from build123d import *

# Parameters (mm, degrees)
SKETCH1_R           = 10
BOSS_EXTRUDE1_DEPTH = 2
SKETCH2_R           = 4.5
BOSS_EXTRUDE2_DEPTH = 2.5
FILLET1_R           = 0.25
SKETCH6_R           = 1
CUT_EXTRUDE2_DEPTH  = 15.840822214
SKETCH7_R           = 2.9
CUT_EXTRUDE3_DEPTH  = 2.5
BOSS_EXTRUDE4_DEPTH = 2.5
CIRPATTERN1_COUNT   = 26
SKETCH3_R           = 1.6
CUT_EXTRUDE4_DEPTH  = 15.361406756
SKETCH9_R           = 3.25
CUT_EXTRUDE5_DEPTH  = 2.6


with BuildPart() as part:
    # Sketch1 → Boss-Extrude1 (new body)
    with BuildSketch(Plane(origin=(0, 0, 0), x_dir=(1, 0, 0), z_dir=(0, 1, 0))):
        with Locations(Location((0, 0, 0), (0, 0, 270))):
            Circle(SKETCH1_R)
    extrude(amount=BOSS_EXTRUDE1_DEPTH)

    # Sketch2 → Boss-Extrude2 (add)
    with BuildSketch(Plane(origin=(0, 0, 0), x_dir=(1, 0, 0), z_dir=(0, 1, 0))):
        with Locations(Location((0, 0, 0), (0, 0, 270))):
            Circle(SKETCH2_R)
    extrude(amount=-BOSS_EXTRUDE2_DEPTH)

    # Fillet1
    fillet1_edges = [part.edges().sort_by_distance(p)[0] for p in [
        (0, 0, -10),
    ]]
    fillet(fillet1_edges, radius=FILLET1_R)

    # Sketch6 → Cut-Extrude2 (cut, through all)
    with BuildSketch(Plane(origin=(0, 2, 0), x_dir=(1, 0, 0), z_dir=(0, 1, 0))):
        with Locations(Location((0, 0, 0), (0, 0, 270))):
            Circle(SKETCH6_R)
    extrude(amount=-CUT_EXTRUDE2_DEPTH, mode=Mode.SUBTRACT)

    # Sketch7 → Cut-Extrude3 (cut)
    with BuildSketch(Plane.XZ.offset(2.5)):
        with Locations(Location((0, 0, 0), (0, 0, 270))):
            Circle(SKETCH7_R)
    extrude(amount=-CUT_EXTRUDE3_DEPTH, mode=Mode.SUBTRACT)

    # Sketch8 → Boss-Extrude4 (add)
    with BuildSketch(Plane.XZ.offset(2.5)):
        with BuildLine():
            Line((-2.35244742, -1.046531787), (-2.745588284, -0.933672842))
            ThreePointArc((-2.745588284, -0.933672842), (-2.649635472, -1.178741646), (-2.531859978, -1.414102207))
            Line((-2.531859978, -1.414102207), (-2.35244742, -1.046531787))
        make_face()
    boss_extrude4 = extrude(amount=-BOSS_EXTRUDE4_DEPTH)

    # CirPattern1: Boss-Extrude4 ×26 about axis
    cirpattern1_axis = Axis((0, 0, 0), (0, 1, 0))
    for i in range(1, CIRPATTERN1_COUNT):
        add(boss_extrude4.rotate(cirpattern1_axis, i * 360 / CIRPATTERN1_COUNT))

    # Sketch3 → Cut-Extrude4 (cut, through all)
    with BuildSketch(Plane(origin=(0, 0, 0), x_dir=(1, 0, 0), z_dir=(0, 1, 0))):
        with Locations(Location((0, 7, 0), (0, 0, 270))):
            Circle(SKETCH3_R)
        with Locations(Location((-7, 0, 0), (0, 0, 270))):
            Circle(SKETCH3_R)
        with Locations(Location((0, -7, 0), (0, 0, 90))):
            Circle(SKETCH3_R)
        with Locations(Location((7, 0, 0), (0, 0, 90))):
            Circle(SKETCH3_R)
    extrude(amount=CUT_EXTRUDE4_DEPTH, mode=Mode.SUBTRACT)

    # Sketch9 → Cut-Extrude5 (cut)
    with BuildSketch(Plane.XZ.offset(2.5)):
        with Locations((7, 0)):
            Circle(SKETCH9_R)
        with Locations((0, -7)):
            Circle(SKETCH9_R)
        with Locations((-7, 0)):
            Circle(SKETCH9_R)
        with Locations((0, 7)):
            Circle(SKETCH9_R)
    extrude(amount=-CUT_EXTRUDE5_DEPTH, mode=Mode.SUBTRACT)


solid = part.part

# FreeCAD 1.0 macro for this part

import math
import FreeCAD as App
import Part
import Sketcher


def edges_at(feature, points):
    """Names of the edges that pass closest to the given points."""
    edges = feature.Shape.Edges
    near = lambda p: min(range(len(edges)), key=lambda i: edges[i].distToShape(Part.Vertex(*p))[0])
    return sorted({f"Edge{near(p) + 1}" for p in points})

doc = App.newDocument("Part")
body = doc.addObject("PartDesign::Body", "Body")

sketch1 = body.newObject("Sketcher::SketchObject", "Sketch")
sketch1.AttachmentSupport = (doc.getObject("XZ_Plane"), [""])
sketch1.MapMode = "FlatFace"
sketch1.addGeometry(Part.Circle(App.Vector(0, 0, 0), App.Vector(0, 0, 1), 10), False)
sketch1.addConstraint([
    Sketcher.Constraint("Coincident", 0, 3, -1, 1),
    Sketcher.Constraint("Diameter", 0, 20.0),
])
pad1 = body.newObject("PartDesign::Pad", "Pad")
pad1.Profile = sketch1
pad1.Length = 2
pad1.Reversed = True

sketch2 = body.newObject("Sketcher::SketchObject", "Sketch001")
sketch2.AttachmentSupport = (doc.getObject("XZ_Plane"), [""])
sketch2.MapMode = "FlatFace"
sketch2.addGeometry(Part.Circle(App.Vector(0, 0, 0), App.Vector(0, 0, 1), 4.5), False)
sketch2.addConstraint([
    Sketcher.Constraint("Coincident", 0, 3, -1, 1),
    Sketcher.Constraint("Diameter", 0, 9.0),
])
pad2 = body.newObject("PartDesign::Pad", "Pad001")
pad2.Profile = sketch2
pad2.Length = 2.5
doc.recompute()

fillet = body.newObject("PartDesign::Fillet", "Fillet")
fillet.Base = (pad2, edges_at(pad2, [(0, 0, -10)]))
fillet.Radius = 0.25

sketch3 = body.newObject("Sketcher::SketchObject", "Sketch002")
sketch3.AttachmentSupport = (doc.getObject("XZ_Plane"), [""])
sketch3.MapMode = "FlatFace"
sketch3.AttachmentOffset = App.Placement(App.Vector(0, 0, -2), App.Rotation())
sketch3.addGeometry(Part.Circle(App.Vector(0, 0, 0), App.Vector(0, 0, 1), 1), False)
sketch3.addConstraint([
    Sketcher.Constraint("Coincident", 0, 3, -1, 1),
    Sketcher.Constraint("Diameter", 0, 2.0),
])
pocket1 = body.newObject("PartDesign::Pocket", "Pocket")
pocket1.Profile = sketch3
pocket1.Type = "ThroughAll"
pocket1.Reversed = True

sketch4 = body.newObject("Sketcher::SketchObject", "Sketch003")
sketch4.AttachmentSupport = (doc.getObject("XZ_Plane"), [""])
sketch4.MapMode = "FlatFace"
sketch4.AttachmentOffset = App.Placement(App.Vector(0, 0, 2.5), App.Rotation())
sketch4.addGeometry(Part.Circle(App.Vector(0, 0, 0), App.Vector(0, 0, 1), 2.9), False)
sketch4.addConstraint([
    Sketcher.Constraint("Coincident", 0, 3, -1, 1),
    Sketcher.Constraint("Diameter", 0, 5.8),
])
pocket2 = body.newObject("PartDesign::Pocket", "Pocket001")
pocket2.Profile = sketch4
pocket2.Length = 2.5

sketch5 = body.newObject("Sketcher::SketchObject", "Sketch004")
sketch5.AttachmentSupport = (doc.getObject("XZ_Plane"), [""])
sketch5.MapMode = "FlatFace"
sketch5.AttachmentOffset = App.Placement(App.Vector(0, 0, 2.5), App.Rotation())
sketch5.addGeometry([
    Part.LineSegment(App.Vector(-2.35, -1.05, 0), App.Vector(-2.75, -0.93, 0)),
    Part.ArcOfCircle(Part.Circle(App.Vector(0, 0, 0), App.Vector(0, 0, 1), 2.9), math.radians(-161.22), math.radians(-150.82)),
    Part.LineSegment(App.Vector(-2.53, -1.41, 0), App.Vector(-2.35, -1.05, 0)),
], False)
sketch5.addConstraint([
    Sketcher.Constraint("Coincident", 0, 2, 1, 1),
    Sketcher.Constraint("Coincident", 1, 2, 2, 1),
    Sketcher.Constraint("Coincident", 2, 2, 0, 1),
    Sketcher.Constraint("Coincident", 1, 3, -1, 1),
    Sketcher.Constraint("Equal", 0, 2),
    Sketcher.Constraint("Radius", 1, 2.9),
    Sketcher.Constraint("Distance", 0, 0.409019),
    Sketcher.Constraint("DistanceX", 0, 2, -1, 1, 2.745588),
    Sketcher.Constraint("DistanceX", 1, 2, -1, 1, 2.53186),
])
pad3 = body.newObject("PartDesign::Pad", "Pad002")
pad3.Profile = sketch5
pad3.Length = 2.5
pad3.Reversed = True
doc.recompute()

polarpattern = body.newObject("PartDesign::PolarPattern", "PolarPattern")
polarpattern.Originals = [pad3]
polarpattern.Axis = (doc.getObject("Y_Axis"), [""])
polarpattern.Angle = 360
polarpattern.Occurrences = 26
body.Tip = polarpattern

sketch6 = body.newObject("Sketcher::SketchObject", "Sketch005")
sketch6.AttachmentSupport = (doc.getObject("XZ_Plane"), [""])
sketch6.MapMode = "FlatFace"
sketch6.addGeometry([
    Part.Circle(App.Vector(0, -7, 0), App.Vector(0, 0, 1), 1.6),
    Part.Circle(App.Vector(-7, 0, 0), App.Vector(0, 0, 1), 1.6),
    Part.Circle(App.Vector(0, 7, 0), App.Vector(0, 0, 1), 1.6),
    Part.Circle(App.Vector(7, 0, 0), App.Vector(0, 0, 1), 1.6),
], False)
sketch6.addConstraint([
    Sketcher.Constraint("Equal", 0, 1),
    Sketcher.Constraint("Equal", 1, 2),
    Sketcher.Constraint("Equal", 2, 3),
    Sketcher.Constraint("Symmetric", 0, 3, 2, 3, -1, 1),
    Sketcher.Constraint("Symmetric", 1, 3, 3, 3, -1, 1),
    Sketcher.Constraint("PointOnObject", 0, 3, -2),
    Sketcher.Constraint("PointOnObject", 1, 3, -1),
    Sketcher.Constraint("Diameter", 0, 3.2),
    Sketcher.Constraint("DistanceY", 0, 3, -1, 1, 7.0),
    Sketcher.Constraint("DistanceX", 1, 3, -1, 1, 7.0),
])
pocket3 = body.newObject("PartDesign::Pocket", "Pocket002")
pocket3.Profile = sketch6
pocket3.Type = "ThroughAll"

sketch7 = body.newObject("Sketcher::SketchObject", "Sketch006")
sketch7.AttachmentSupport = (doc.getObject("XZ_Plane"), [""])
sketch7.MapMode = "FlatFace"
sketch7.AttachmentOffset = App.Placement(App.Vector(0, 0, 2.5), App.Rotation())
sketch7.addGeometry([
    Part.Circle(App.Vector(7, 0, 0), App.Vector(0, 0, 1), 3.2),
    Part.Circle(App.Vector(0, -7, 0), App.Vector(0, 0, 1), 3.2),
    Part.Circle(App.Vector(-7, 0, 0), App.Vector(0, 0, 1), 3.2),
    Part.Circle(App.Vector(0, 7, 0), App.Vector(0, 0, 1), 3.2),
], False)
sketch7.addConstraint([
    Sketcher.Constraint("Equal", 0, 1),
    Sketcher.Constraint("Equal", 1, 2),
    Sketcher.Constraint("Equal", 2, 3),
    Sketcher.Constraint("Symmetric", 0, 3, 2, 3, -1, 1),
    Sketcher.Constraint("Symmetric", 1, 3, 3, 3, -1, 1),
    Sketcher.Constraint("PointOnObject", 0, 3, -1),
    Sketcher.Constraint("PointOnObject", 1, 3, -2),
    Sketcher.Constraint("Diameter", 0, 6.5),
    Sketcher.Constraint("DistanceX", -1, 1, 0, 3, 7.0),
    Sketcher.Constraint("DistanceY", 1, 3, -1, 1, 7.0),
])
pocket4 = body.newObject("PartDesign::Pocket", "Pocket003")
pocket4.Profile = sketch7
pocket4.Length = 2.6

doc.recompute()
